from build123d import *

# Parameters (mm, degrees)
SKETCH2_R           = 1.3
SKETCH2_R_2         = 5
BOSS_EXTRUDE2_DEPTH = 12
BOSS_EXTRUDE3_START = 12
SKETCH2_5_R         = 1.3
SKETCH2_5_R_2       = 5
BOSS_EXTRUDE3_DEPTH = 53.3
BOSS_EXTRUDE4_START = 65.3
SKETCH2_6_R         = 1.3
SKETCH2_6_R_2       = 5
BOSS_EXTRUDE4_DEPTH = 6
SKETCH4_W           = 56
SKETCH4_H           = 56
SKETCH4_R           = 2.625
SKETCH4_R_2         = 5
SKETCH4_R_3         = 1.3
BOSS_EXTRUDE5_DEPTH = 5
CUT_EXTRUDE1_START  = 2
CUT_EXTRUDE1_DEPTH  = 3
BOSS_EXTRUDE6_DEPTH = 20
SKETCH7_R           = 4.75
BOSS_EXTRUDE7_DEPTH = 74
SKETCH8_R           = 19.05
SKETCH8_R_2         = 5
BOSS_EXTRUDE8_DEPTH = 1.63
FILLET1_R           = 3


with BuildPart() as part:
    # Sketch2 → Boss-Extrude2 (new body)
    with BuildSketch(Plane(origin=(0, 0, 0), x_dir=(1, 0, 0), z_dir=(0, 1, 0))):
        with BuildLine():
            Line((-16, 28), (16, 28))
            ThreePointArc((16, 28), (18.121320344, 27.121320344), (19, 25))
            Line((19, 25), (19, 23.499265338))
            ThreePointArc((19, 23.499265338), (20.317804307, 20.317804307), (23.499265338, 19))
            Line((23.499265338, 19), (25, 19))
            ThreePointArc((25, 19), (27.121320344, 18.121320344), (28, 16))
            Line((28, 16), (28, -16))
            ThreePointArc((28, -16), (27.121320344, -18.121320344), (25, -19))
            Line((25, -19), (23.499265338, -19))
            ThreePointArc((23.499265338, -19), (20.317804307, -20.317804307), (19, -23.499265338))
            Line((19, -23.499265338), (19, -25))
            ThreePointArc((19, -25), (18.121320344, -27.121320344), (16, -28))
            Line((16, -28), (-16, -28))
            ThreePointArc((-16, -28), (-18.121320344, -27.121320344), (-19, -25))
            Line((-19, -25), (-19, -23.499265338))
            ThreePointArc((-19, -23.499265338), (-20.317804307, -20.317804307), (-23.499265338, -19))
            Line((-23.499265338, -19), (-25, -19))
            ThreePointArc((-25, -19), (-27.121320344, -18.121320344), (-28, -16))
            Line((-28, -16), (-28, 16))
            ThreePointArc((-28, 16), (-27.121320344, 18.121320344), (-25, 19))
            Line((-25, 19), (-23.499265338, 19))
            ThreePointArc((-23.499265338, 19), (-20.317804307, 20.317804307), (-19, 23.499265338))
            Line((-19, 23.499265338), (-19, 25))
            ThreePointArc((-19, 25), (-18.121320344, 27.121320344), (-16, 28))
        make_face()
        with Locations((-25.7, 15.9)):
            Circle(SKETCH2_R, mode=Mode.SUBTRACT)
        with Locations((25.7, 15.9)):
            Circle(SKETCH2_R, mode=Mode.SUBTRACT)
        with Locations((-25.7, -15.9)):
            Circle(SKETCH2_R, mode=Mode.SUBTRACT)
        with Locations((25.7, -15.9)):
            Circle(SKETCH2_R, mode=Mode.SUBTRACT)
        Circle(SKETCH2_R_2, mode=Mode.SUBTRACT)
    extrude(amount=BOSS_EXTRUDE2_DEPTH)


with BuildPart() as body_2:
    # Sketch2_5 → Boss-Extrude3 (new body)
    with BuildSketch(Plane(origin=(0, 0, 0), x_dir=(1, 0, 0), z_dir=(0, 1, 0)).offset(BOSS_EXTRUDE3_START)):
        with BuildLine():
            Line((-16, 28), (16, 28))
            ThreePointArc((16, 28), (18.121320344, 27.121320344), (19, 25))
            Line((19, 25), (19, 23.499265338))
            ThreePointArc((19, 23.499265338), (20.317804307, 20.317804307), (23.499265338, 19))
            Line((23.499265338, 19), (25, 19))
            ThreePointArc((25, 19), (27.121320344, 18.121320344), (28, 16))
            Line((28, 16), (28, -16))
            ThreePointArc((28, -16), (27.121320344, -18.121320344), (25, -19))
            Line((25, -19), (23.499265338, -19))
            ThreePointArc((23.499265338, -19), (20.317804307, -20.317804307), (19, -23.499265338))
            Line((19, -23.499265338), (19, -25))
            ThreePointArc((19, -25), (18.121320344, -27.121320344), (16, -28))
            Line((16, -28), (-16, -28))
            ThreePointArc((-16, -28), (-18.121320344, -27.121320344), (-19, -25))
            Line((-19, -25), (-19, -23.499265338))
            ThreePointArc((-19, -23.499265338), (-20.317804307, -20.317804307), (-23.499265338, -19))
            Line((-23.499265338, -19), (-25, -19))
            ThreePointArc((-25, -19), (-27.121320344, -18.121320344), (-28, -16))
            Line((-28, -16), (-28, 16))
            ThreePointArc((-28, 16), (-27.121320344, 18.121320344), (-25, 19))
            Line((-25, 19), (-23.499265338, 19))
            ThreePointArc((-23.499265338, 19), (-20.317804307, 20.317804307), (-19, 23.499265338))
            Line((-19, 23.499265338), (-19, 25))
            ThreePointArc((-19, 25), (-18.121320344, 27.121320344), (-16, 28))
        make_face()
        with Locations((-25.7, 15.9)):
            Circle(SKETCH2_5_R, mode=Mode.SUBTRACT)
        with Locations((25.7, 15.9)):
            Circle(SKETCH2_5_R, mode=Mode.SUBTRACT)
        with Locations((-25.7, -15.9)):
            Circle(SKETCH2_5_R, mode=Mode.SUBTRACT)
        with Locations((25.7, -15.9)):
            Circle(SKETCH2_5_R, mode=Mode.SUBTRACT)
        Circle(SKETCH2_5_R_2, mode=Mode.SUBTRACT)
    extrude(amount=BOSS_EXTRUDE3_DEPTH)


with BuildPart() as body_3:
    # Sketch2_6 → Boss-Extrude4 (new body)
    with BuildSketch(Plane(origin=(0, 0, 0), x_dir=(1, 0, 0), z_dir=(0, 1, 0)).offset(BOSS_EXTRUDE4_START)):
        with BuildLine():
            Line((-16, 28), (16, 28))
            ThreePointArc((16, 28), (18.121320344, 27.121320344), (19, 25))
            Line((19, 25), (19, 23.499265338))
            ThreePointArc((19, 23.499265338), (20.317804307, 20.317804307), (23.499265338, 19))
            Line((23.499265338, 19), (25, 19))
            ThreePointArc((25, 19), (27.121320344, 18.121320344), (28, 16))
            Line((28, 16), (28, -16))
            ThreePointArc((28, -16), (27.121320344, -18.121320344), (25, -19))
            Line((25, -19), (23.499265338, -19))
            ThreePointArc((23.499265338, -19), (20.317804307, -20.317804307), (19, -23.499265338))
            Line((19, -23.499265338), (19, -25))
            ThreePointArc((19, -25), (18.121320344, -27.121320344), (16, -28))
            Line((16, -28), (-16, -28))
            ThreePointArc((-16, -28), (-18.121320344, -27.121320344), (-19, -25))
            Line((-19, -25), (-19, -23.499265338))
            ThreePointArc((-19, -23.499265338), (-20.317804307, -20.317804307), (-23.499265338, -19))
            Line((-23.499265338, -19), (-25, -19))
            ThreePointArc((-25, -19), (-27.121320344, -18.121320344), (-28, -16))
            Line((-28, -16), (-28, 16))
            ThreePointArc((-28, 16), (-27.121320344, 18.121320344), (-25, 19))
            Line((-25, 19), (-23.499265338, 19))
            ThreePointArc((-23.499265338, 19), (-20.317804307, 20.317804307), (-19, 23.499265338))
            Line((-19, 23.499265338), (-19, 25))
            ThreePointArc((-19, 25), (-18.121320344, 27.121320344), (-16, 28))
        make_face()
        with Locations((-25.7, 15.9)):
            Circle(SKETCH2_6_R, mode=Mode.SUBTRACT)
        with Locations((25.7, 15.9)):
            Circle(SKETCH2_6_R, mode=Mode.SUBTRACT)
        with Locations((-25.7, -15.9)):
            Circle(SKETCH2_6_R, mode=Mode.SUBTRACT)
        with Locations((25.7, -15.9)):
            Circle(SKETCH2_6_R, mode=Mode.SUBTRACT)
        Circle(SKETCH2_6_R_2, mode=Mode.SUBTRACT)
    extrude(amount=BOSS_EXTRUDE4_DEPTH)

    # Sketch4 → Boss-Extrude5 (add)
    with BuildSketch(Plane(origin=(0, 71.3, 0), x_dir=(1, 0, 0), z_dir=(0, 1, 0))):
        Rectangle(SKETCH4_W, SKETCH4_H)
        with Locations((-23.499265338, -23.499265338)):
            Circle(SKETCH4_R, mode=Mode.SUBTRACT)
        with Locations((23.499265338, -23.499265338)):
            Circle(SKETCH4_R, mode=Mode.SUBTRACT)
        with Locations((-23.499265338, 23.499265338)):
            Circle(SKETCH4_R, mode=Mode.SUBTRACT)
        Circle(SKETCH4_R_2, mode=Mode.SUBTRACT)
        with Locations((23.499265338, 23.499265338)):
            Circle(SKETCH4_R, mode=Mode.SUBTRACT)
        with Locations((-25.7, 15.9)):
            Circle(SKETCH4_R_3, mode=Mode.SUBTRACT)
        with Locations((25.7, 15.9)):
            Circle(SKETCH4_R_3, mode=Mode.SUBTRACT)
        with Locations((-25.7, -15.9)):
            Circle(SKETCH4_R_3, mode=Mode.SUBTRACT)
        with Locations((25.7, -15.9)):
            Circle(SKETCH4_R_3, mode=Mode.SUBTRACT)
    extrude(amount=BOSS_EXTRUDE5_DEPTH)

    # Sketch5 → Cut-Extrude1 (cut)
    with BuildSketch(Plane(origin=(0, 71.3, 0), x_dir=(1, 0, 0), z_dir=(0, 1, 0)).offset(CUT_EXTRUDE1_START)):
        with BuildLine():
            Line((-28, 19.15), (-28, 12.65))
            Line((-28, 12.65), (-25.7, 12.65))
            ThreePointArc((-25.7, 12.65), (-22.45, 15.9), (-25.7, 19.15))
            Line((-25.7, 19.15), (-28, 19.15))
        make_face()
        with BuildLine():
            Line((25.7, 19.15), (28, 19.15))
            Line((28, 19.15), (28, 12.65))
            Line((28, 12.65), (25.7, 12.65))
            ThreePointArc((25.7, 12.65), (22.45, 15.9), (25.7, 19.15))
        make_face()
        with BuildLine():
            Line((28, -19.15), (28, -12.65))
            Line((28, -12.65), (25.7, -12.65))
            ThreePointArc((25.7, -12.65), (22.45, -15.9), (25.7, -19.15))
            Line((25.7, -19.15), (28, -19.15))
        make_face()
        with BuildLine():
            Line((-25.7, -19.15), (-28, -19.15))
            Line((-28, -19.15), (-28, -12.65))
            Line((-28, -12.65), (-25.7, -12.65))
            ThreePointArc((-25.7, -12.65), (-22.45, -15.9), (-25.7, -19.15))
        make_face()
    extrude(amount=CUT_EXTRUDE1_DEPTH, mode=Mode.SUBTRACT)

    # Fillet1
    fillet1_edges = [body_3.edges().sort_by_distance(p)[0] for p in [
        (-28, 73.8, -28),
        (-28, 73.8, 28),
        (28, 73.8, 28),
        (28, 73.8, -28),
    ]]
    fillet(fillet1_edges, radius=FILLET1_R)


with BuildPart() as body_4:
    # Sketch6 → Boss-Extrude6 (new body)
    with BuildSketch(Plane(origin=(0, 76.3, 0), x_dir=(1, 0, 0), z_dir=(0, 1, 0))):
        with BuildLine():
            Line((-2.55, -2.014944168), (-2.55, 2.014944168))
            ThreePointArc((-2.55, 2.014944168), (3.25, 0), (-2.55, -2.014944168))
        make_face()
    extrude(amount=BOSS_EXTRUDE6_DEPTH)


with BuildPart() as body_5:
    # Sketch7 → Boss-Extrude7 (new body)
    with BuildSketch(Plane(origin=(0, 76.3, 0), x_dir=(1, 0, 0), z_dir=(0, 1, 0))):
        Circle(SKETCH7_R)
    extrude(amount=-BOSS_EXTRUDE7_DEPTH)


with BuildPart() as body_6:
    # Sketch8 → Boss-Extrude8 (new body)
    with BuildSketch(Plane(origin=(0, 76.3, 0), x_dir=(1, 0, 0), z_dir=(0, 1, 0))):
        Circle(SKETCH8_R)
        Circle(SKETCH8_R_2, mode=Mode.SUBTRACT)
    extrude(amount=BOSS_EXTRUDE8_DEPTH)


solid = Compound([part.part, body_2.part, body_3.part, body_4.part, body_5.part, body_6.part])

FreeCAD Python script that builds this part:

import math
import FreeCAD as App
import Part
import Sketcher


def edges_at(feature, points):
    """Names of the edges that pass closest to the given points."""
    edges = feature.Shape.Edges
    near = lambda p: min(range(len(edges)), key=lambda i: edges[i].distToShape(Part.Vertex(*p))[0])
    return sorted({f"Edge{near(p) + 1}" for p in points})


def add_polygon(sketch, points):
    """Adds a closed chain of lines whose ends are joined by coincident constraints."""
    first, n = sketch.GeometryCount, len(points)
    for a, b in zip(points, points[1:] + points[:1]):
        sketch.addGeometry(Part.LineSegment(App.Vector(*a, 0), App.Vector(*b, 0)), False)
    for i in range(n):
        sketch.addConstraint(Sketcher.Constraint("Coincident", first + i, 2, first + (i + 1) % n, 1))

doc = App.newDocument("Part")
params = doc.addObject("Spreadsheet::Sheet", "Params")
for row, (alias, value) in enumerate([
    ("sketch1_diameter", "10 mm"),
    ("sketch1_radius", "3 mm"),
    ("sketch1_diameter2", "2.6 mm"),
    ("sketch1_width", "32 mm"),
    ("pad1_length", "12 mm"),
    ("sketch2_diameter", "10 mm"),
    ("sketch2_radius", "3 mm"),
    ("sketch2_diameter2", "2.6 mm"),
    ("sketch2_width", "32 mm"),
    ("pad2_length", "53.3 mm"),
    ("sketch3_diameter", "10 mm"),
    ("sketch3_radius", "3 mm"),
    ("sketch3_diameter2", "2.6 mm"),
    ("sketch3_width", "32 mm"),
    ("pad3_length", "6 mm"),
    ("sketch4_diameter", "10 mm"),
    ("sketch4_diameter2", "2.6 mm"),
    ("sketch4_diameter3", "5.25 mm"),
    ("sketch4_width", "56 mm"),
    ("pad4_length", "5 mm"),
    ("sketch5_radius", "3.25 mm"),
    ("sketch5_width", "2.3 mm"),
    ("pocket1_length", "3 mm"),
    ("fillet_radius", "3 mm"),
    ("sketch6_radius", "3.25 mm"),
    ("pad5_length", "20 mm"),
    ("sketch7_diameter", "9.5 mm"),
    ("pad6_length", "74 mm"),
    ("sketch8_diameter", "10 mm"),
    ("sketch8_diameter2", "38.1 mm"),
    ("pad7_length", "1.63 mm"),
], start=1):
    params.set(f"A{row}", alias)
    params.set(f"B{row}", "=" + value)
    params.setAlias(f"B{row}", alias)

body = doc.addObject("PartDesign::Body", "Body")

# Sketch on XZ plane
sketch1 = body.newObject("Sketcher::SketchObject", "Sketch")
sketch1.AttachmentSupport = (doc.getObject("XZ_Plane"), [""])
sketch1.MapMode = "FlatFace"
sketch1.addGeometry(Part.LineSegment(App.Vector(16, -28, 0), App.Vector(-16, -28, 0)), False)
sketch1.addGeometry(Part.ArcOfCircle(Part.Circle(App.Vector(-16, -25, 0), App.Vector(0, 0, 1), 3), math.radians(180), math.radians(270)), False)
sketch1.addGeometry(Part.LineSegment(App.Vector(-19, -25, 0), App.Vector(-19, -23.499265, 0)), False)
sketch1.addGeometry(Part.ArcOfCircle(Part.Circle(App.Vector(-23.499265, -23.499265, 0), App.Vector(0, 0, 1), 4.499265), math.radians(0), math.radians(90)), False)
sketch1.addGeometry(Part.LineSegment(App.Vector(-23.499265, -19, 0), App.Vector(-25, -19, 0)), False)
sketch1.addGeometry(Part.ArcOfCircle(Part.Circle(App.Vector(-25, -16, 0), App.Vector(0, 0, 1), 3), math.radians(180), math.radians(270)), False)
sketch1.addGeometry(Part.LineSegment(App.Vector(-28, -16, 0), App.Vector(-28, 16, 0)), False)
sketch1.addGeometry(Part.ArcOfCircle(Part.Circle(App.Vector(-25, 16, 0), App.Vector(0, 0, 1), 3), math.radians(90), math.radians(180)), False)
sketch1.addGeometry(Part.LineSegment(App.Vector(-25, 19, 0), App.Vector(-23.499265, 19, 0)), False)
sketch1.addGeometry(Part.ArcOfCircle(Part.Circle(App.Vector(-23.499265, 23.499265, 0), App.Vector(0, 0, 1), 4.499265), math.radians(-90), math.radians(0)), False)
sketch1.addGeometry(Part.LineSegment(App.Vector(-19, 23.499265, 0), App.Vector(-19, 25, 0)), False)
sketch1.addGeometry(Part.ArcOfCircle(Part.Circle(App.Vector(-16, 25, 0), App.Vector(0, 0, 1), 3), math.radians(90), math.radians(180)), False)
sketch1.addGeometry(Part.LineSegment(App.Vector(-16, 28, 0), App.Vector(16, 28, 0)), False)
sketch1.addGeometry(Part.ArcOfCircle(Part.Circle(App.Vector(16, 25, 0), App.Vector(0, 0, 1), 3), math.radians(0), math.radians(90)), False)
sketch1.addGeometry(Part.LineSegment(App.Vector(19, 25, 0), App.Vector(19, 23.499265, 0)), False)
sketch1.addGeometry(Part.ArcOfCircle(Part.Circle(App.Vector(23.499265, 23.499265, 0), App.Vector(0, 0, 1), 4.499265), math.radians(180), math.radians(270)), False)
sketch1.addGeometry(Part.LineSegment(App.Vector(23.499265, 19, 0), App.Vector(25, 19, 0)), False)
sketch1.addGeometry(Part.ArcOfCircle(Part.Circle(App.Vector(25, 16, 0), App.Vector(0, 0, 1), 3), math.radians(0), math.radians(90)), False)
sketch1.addGeometry(Part.LineSegment(App.Vector(28, 16, 0), App.Vector(28, -16, 0)), False)
sketch1.addGeometry(Part.ArcOfCircle(Part.Circle(App.Vector(25, -16, 0), App.Vector(0, 0, 1), 3), math.radians(-90), math.radians(0)), False)
sketch1.addGeometry(Part.LineSegment(App.Vector(25, -19, 0), App.Vector(23.499265, -19, 0)), False)
sketch1.addGeometry(Part.ArcOfCircle(Part.Circle(App.Vector(23.499265, -23.499265, 0), App.Vector(0, 0, 1), 4.499265), math.radians(90), math.radians(180)), False)
sketch1.addGeometry(Part.LineSegment(App.Vector(19, -23.499265, 0), App.Vector(19, -25, 0)), False)
sketch1.addGeometry(Part.ArcOfCircle(Part.Circle(App.Vector(16, -25, 0), App.Vector(0, 0, 1), 3), math.radians(-90), math.radians(0)), False)
sketch1.addGeometry(Part.Circle(App.Vector(25.7, 15.9, 0), App.Vector(0, 0, 1), 1.3), False)
sketch1.addGeometry(Part.Circle(App.Vector(-25.7, 15.9, 0), App.Vector(0, 0, 1), 1.3), False)
sketch1.addGeometry(Part.Circle(App.Vector(25.7, -15.9, 0), App.Vector(0, 0, 1), 1.3), False)
sketch1.addGeometry(Part.Circle(App.Vector(0, 0, 0), App.Vector(0, 0, 1), 5), False)
sketch1.addGeometry(Part.Circle(App.Vector(-25.7, -15.9, 0), App.Vector(0, 0, 1), 1.3), False)
sketch1.addConstraint(Sketcher.Constraint("Tangent", 0, 2, 1, 2))
sketch1.addConstraint(Sketcher.Constraint("Tangent", 1, 1, 2, 1))
sketch1.addConstraint(Sketcher.Constraint("Tangent", 2, 2, 3, 1))
sketch1.addConstraint(Sketcher.Constraint("Tangent", 3, 2, 4, 1))
sketch1.addConstraint(Sketcher.Constraint("Tangent", 4, 2, 5, 2))
sketch1.addConstraint(Sketcher.Constraint("Tangent", 5, 1, 6, 1))
sketch1.addConstraint(Sketcher.Constraint("Tangent", 6, 2, 7, 2))
sketch1.addConstraint(Sketcher.Constraint("Tangent", 7, 1, 8, 1))
sketch1.addConstraint(Sketcher.Constraint("Tangent", 8, 2, 9, 1))
sketch1.addConstraint(Sketcher.Constraint("Tangent", 9, 2, 10, 1))
sketch1.addConstraint(Sketcher.Constraint("Tangent", 10, 2, 11, 2))
sketch1.addConstraint(Sketcher.Constraint("Tangent", 11, 1, 12, 1))
sketch1.addConstraint(Sketcher.Constraint("Tangent", 12, 2, 13, 2))
sketch1.addConstraint(Sketcher.Constraint("Tangent", 13, 1, 14, 1))
sketch1.addConstraint(Sketcher.Constraint("Tangent", 14, 2, 15, 1))
sketch1.addConstraint(Sketcher.Constraint("Tangent", 15, 2, 16, 1))
sketch1.addConstraint(Sketcher.Constraint("Tangent", 16, 2, 17, 2))
sketch1.addConstraint(Sketcher.Constraint("Tangent", 17, 1, 18, 1))
sketch1.addConstraint(Sketcher.Constraint("Tangent", 18, 2, 19, 2))
sketch1.addConstraint(Sketcher.Constraint("Tangent", 19, 1, 20, 1))
sketch1.addConstraint(Sketcher.Constraint("Tangent", 20, 2, 21, 1))
sketch1.addConstraint(Sketcher.Constraint("Tangent", 21, 2, 22, 1))
sketch1.addConstraint(Sketcher.Constraint("Tangent", 22, 2, 23, 2))
sketch1.addConstraint(Sketcher.Constraint("Tangent", 23, 1, 0, 1))
sketch1.addConstraint(Sketcher.Constraint("Horizontal", 0))
sketch1.addConstraint(Sketcher.Constraint("Vertical", 2))
sketch1.addConstraint(Sketcher.Constraint("Horizontal", 4))
sketch1.addConstraint(Sketcher.Constraint("Vertical", 6))
sketch1.addConstraint(Sketcher.Constraint("Horizontal", 8))
sketch1.addConstraint(Sketcher.Constraint("Vertical", 10))
sketch1.addConstraint(Sketcher.Constraint("Horizontal", 12))
sketch1.addConstraint(Sketcher.Constraint("Vertical", 14))
sketch1.addConstraint(Sketcher.Constraint("Horizontal", 16))
sketch1.addConstraint(Sketcher.Constraint("Vertical", 18))
sketch1.addConstraint(Sketcher.Constraint("Horizontal", 20))
sketch1.addConstraint(Sketcher.Constraint("Vertical", 22))
sketch1.addConstraint(Sketcher.Constraint("Coincident", 27, 3, -1, 1))
sketch1.addConstraint(Sketcher.Constraint("Equal", 1, 5))
sketch1.addConstraint(Sketcher.Constraint("Equal", 5, 7))
sketch1.addConstraint(Sketcher.Constraint("Equal", 3, 9))
sketch1.addConstraint(Sketcher.Constraint("Equal", 7, 11))
sketch1.addConstraint(Sketcher.Constraint("Equal", 11, 13))
sketch1.addConstraint(Sketcher.Constraint("Equal", 9, 15))
sketch1.addConstraint(Sketcher.Constraint("Equal", 13, 17))
sketch1.addConstraint(Sketcher.Constraint("Equal", 17, 19))
sketch1.addConstraint(Sketcher.Constraint("Equal", 15, 21))
sketch1.addConstraint(Sketcher.Constraint("Equal", 19, 23))
sketch1.addConstraint(Sketcher.Constraint("Equal", 24, 25))
sketch1.addConstraint(Sketcher.Constraint("Equal", 25, 26))
sketch1.addConstraint(Sketcher.Constraint("Equal", 26, 28))
sketch1.addConstraint(Sketcher.Constraint("Symmetric", 1, 3, 13, 3, -1, 1))
sketch1.addConstraint(Sketcher.Constraint("Symmetric", 5, 3, 17, 3, -1, 1))
sketch1.addConstraint(Sketcher.Constraint("Symmetric", 9, 3, 21, 3, -1, 1))
sketch1.addConstraint(Sketcher.Constraint("Symmetric", 25, 3, 26, 3, -1, 1))
sketch1.addConstraint(Sketcher.Constraint("Symmetric", 24, 3, 28, 3, -1, 1))
sketch1.addConstraint(Sketcher.Constraint("Symmetric", 9, 3, 15, 3, -2))
sketch1.addConstraint(Sketcher.Constraint("Symmetric", 24, 3, 25, 3, -2))
sketch1.addConstraint(Sketcher.Constraint("Equal", 20, 2))
sketch1.addConstraint(Sketcher.Constraint("Equal", 12, 6))
sketch1.addConstraint(Sketcher.Constraint("Diameter", 27, 10.0))
sketch1.addConstraint(Sketcher.Constraint("Radius", 1, 3.0))
sketch1.addConstraint(Sketcher.Constraint("Diameter", 24, 2.6))
sketch1.addConstraint(Sketcher.Constraint("DistanceX", 0, 2, 0, 1, 32.0))
sketch1.addConstraint(Sketcher.Constraint("DistanceY", 1, 3, -1, 1, 25.0))
sketch1.addConstraint(Sketcher.Constraint("DistanceX", -1, 1, 24, 3, 25.7))
sketch1.addConstraint(Sketcher.Constraint("DistanceY", -1, 1, 24, 3, 15.9))
sketch1.addConstraint(Sketcher.Constraint("Radius", 3, 4.499265))
sketch1.setExpression("Constraints[59]", "Params.sketch1_diameter")
sketch1.setExpression("Constraints[60]", "Params.sketch1_radius")
sketch1.setExpression("Constraints[61]", "Params.sketch1_diameter2")
sketch1.setExpression("Constraints[62]", "Params.sketch1_width")
pad1 = body.newObject("PartDesign::Pad", "Pad")
pad1.Profile = sketch1
pad1.setExpression("Length", "Params.pad1_length")
pad1.Reversed = True
body2 = doc.addObject("PartDesign::Body", "Body001")

# Sketch on XZ plane
sketch2 = body2.newObject("Sketcher::SketchObject", "Sketch001")
sketch2.AttachmentSupport = (doc.getObject("XZ_Plane001"), [""])
sketch2.MapMode = "FlatFace"
sketch2.AttachmentOffset = App.Placement(App.Vector(0, 0, -12), App.Rotation())
sketch2.addGeometry(Part.LineSegment(App.Vector(16, -28, 0), App.Vector(-16, -28, 0)), False)
sketch2.addGeometry(Part.ArcOfCircle(Part.Circle(App.Vector(-16, -25, 0), App.Vector(0, 0, 1), 3), math.radians(180), math.radians(270)), False)
sketch2.addGeometry(Part.LineSegment(App.Vector(-19, -25, 0), App.Vector(-19, -23.499265, 0)), False)
sketch2.addGeometry(Part.ArcOfCircle(Part.Circle(App.Vector(-23.499265, -23.499265, 0), App.Vector(0, 0, 1), 4.499265), math.radians(0), math.radians(90)), False)
sketch2.addGeometry(Part.LineSegment(App.Vector(-23.499265, -19, 0), App.Vector(-25, -19, 0)), False)
sketch2.addGeometry(Part.ArcOfCircle(Part.Circle(App.Vector(-25, -16, 0), App.Vector(0, 0, 1), 3), math.radians(180), math.radians(270)), False)
sketch2.addGeometry(Part.LineSegment(App.Vector(-28, -16, 0), App.Vector(-28, 16, 0)), False)
sketch2.addGeometry(Part.ArcOfCircle(Part.Circle(App.Vector(-25, 16, 0), App.Vector(0, 0, 1), 3), math.radians(90), math.radians(180)), False)
sketch2.addGeometry(Part.LineSegment(App.Vector(-25, 19, 0), App.Vector(-23.499265, 19, 0)), False)
sketch2.addGeometry(Part.ArcOfCircle(Part.Circle(App.Vector(-23.499265, 23.499265, 0), App.Vector(0, 0, 1), 4.499265), math.radians(-90), math.radians(0)), False)
sketch2.addGeometry(Part.LineSegment(App.Vector(-19, 23.499265, 0), App.Vector(-19, 25, 0)), False)
sketch2.addGeometry(Part.ArcOfCircle(Part.Circle(App.Vector(-16, 25, 0), App.Vector(0, 0, 1), 3), math.radians(90), math.radians(180)), False)
sketch2.addGeometry(Part.LineSegment(App.Vector(-16, 28, 0), App.Vector(16, 28, 0)), False)
sketch2.addGeometry(Part.ArcOfCircle(Part.Circle(App.Vector(16, 25, 0), App.Vector(0, 0, 1), 3), math.radians(0), math.radians(90)), False)
sketch2.addGeometry(Part.LineSegment(App.Vector(19, 25, 0), App.Vector(19, 23.499265, 0)), False)
sketch2.addGeometry(Part.ArcOfCircle(Part.Circle(App.Vector(23.499265, 23.499265, 0), App.Vector(0, 0, 1), 4.499265), math.radians(180), math.radians(270)), False)
sketch2.addGeometry(Part.LineSegment(App.Vector(23.499265, 19, 0), App.Vector(25, 19, 0)), False)
sketch2.addGeometry(Part.ArcOfCircle(Part.Circle(App.Vector(25, 16, 0), App.Vector(0, 0, 1), 3), math.radians(0), math.radians(90)), False)
sketch2.addGeometry(Part.LineSegment(App.Vector(28, 16, 0), App.Vector(28, -16, 0)), False)
sketch2.addGeometry(Part.ArcOfCircle(Part.Circle(App.Vector(25, -16, 0), App.Vector(0, 0, 1), 3), math.radians(-90), math.radians(0)), False)
sketch2.addGeometry(Part.LineSegment(App.Vector(25, -19, 0), App.Vector(23.499265, -19, 0)), False)
sketch2.addGeometry(Part.ArcOfCircle(Part.Circle(App.Vector(23.499265, -23.499265, 0), App.Vector(0, 0, 1), 4.499265), math.radians(90), math.radians(180)), False)
sketch2.addGeometry(Part.LineSegment(App.Vector(19, -23.499265, 0), App.Vector(19, -25, 0)), False)
sketch2.addGeometry(Part.ArcOfCircle(Part.Circle(App.Vector(16, -25, 0), App.Vector(0, 0, 1), 3), math.radians(-90), math.radians(0)), False)
sketch2.addGeometry(Part.Circle(App.Vector(25.7, 15.9, 0), App.Vector(0, 0, 1), 1.3), False)
sketch2.addGeometry(Part.Circle(App.Vector(-25.7, 15.9, 0), App.Vector(0, 0, 1), 1.3), False)
sketch2.addGeometry(Part.Circle(App.Vector(25.7, -15.9, 0), App.Vector(0, 0, 1), 1.3), False)
sketch2.addGeometry(Part.Circle(App.Vector(0, 0, 0), App.Vector(0, 0, 1), 5), False)
sketch2.addGeometry(Part.Circle(App.Vector(-25.7, -15.9, 0), App.Vector(0, 0, 1), 1.3), False)
sketch2.addConstraint(Sketcher.Constraint("Tangent", 0, 2, 1, 2))
sketch2.addConstraint(Sketcher.Constraint("Tangent", 1, 1, 2, 1))
sketch2.addConstraint(Sketcher.Constraint("Tangent", 2, 2, 3, 1))
sketch2.addConstraint(Sketcher.Constraint("Tangent", 3, 2, 4, 1))
sketch2.addConstraint(Sketcher.Constraint("Tangent", 4, 2, 5, 2))
sketch2.addConstraint(Sketcher.Constraint("Tangent", 5, 1, 6, 1))
sketch2.addConstraint(Sketcher.Constraint("Tangent", 6, 2, 7, 2))
sketch2.addConstraint(Sketcher.Constraint("Tangent", 7, 1, 8, 1))
sketch2.addConstraint(Sketcher.Constraint("Tangent", 8, 2, 9, 1))
sketch2.addConstraint(Sketcher.Constraint("Tangent", 9, 2, 10, 1))
sketch2.addConstraint(Sketcher.Constraint("Tangent", 10, 2, 11, 2))
sketch2.addConstraint(Sketcher.Constraint("Tangent", 11, 1, 12, 1))
sketch2.addConstraint(Sketcher.Constraint("Tangent", 12, 2, 13, 2))
sketch2.addConstraint(Sketcher.Constraint("Tangent", 13, 1, 14, 1))
sketch2.addConstraint(Sketcher.Constraint("Tangent", 14, 2, 15, 1))
sketch2.addConstraint(Sketcher.Constraint("Tangent", 15, 2, 16, 1))
sketch2.addConstraint(Sketcher.Constraint("Tangent", 16, 2, 17, 2))
sketch2.addConstraint(Sketcher.Constraint("Tangent", 17, 1, 18, 1))
sketch2.addConstraint(Sketcher.Constraint("Tangent", 18, 2, 19, 2))
sketch2.addConstraint(Sketcher.Constraint("Tangent", 19, 1, 20, 1))
sketch2.addConstraint(Sketcher.Constraint("Tangent", 20, 2, 21, 1))
sketch2.addConstraint(Sketcher.Constraint("Tangent", 21, 2, 22, 1))
sketch2.addConstraint(Sketcher.Constraint("Tangent", 22, 2, 23, 2))
sketch2.addConstraint(Sketcher.Constraint("Tangent", 23, 1, 0, 1))
sketch2.addConstraint(Sketcher.Constraint("Horizontal", 0))
sketch2.addConstraint(Sketcher.Constraint("Vertical", 2))
sketch2.addConstraint(Sketcher.Constraint("Horizontal", 4))
sketch2.addConstraint(Sketcher.Constraint("Vertical", 6))
sketch2.addConstraint(Sketcher.Constraint("Horizontal", 8))
sketch2.addConstraint(Sketcher.Constraint("Vertical", 10))
sketch2.addConstraint(Sketcher.Constraint("Horizontal", 12))
sketch2.addConstraint(Sketcher.Constraint("Vertical", 14))
sketch2.addConstraint(Sketcher.Constraint("Horizontal", 16))
sketch2.addConstraint(Sketcher.Constraint("Vertical", 18))
sketch2.addConstraint(Sketcher.Constraint("Horizontal", 20))
sketch2.addConstraint(Sketcher.Constraint("Vertical", 22))
sketch2.addConstraint(Sketcher.Constraint("Coincident", 27, 3, -1, 1))
sketch2.addConstraint(Sketcher.Constraint("Equal", 1, 5))
sketch2.addConstraint(Sketcher.Constraint("Equal", 5, 7))
sketch2.addConstraint(Sketcher.Constraint("Equal", 3, 9))
sketch2.addConstraint(Sketcher.Constraint("Equal", 7, 11))
sketch2.addConstraint(Sketcher.Constraint("Equal", 11, 13))
sketch2.addConstraint(Sketcher.Constraint("Equal", 9, 15))
sketch2.addConstraint(Sketcher.Constraint("Equal", 13, 17))
sketch2.addConstraint(Sketcher.Constraint("Equal", 17, 19))
sketch2.addConstraint(Sketcher.Constraint("Equal", 15, 21))
sketch2.addConstraint(Sketcher.Constraint("Equal", 19, 23))
sketch2.addConstraint(Sketcher.Constraint("Equal", 24, 25))
sketch2.addConstraint(Sketcher.Constraint("Equal", 25, 26))
sketch2.addConstraint(Sketcher.Constraint("Equal", 26, 28))
sketch2.addConstraint(Sketcher.Constraint("Symmetric", 1, 3, 13, 3, -1, 1))
sketch2.addConstraint(Sketcher.Constraint("Symmetric", 5, 3, 17, 3, -1, 1))
sketch2.addConstraint(Sketcher.Constraint("Symmetric", 9, 3, 21, 3, -1, 1))
sketch2.addConstraint(Sketcher.Constraint("Symmetric", 25, 3, 26, 3, -1, 1))
sketch2.addConstraint(Sketcher.Constraint("Symmetric", 24, 3, 28, 3, -1, 1))
sketch2.addConstraint(Sketcher.Constraint("Symmetric", 9, 3, 15, 3, -2))
sketch2.addConstraint(Sketcher.Constraint("Symmetric", 24, 3, 25, 3, -2))
sketch2.addConstraint(Sketcher.Constraint("Equal", 20, 2))
sketch2.addConstraint(Sketcher.Constraint("Equal", 12, 6))
sketch2.addConstraint(Sketcher.Constraint("Diameter", 27, 10.0))
sketch2.addConstraint(Sketcher.Constraint("Radius", 1, 3.0))
sketch2.addConstraint(Sketcher.Constraint("Diameter", 24, 2.6))
sketch2.addConstraint(Sketcher.Constraint("DistanceX", 0, 2, 0, 1, 32.0))
sketch2.addConstraint(Sketcher.Constraint("DistanceY", 1, 3, -1, 1, 25.0))
sketch2.addConstraint(Sketcher.Constraint("DistanceX", -1, 1, 24, 3, 25.7))
sketch2.addConstraint(Sketcher.Constraint("DistanceY", -1, 1, 24, 3, 15.9))
sketch2.addConstraint(Sketcher.Constraint("Radius", 3, 4.499265))
sketch2.setExpression("Constraints[59]", "Params.sketch2_diameter")
sketch2.setExpression("Constraints[60]", "Params.sketch2_radius")
sketch2.setExpression("Constraints[61]", "Params.sketch2_diameter2")
sketch2.setExpression("Constraints[62]", "Params.sketch2_width")
pad2 = body2.newObject("PartDesign::Pad", "Pad001")
pad2.Profile = sketch2
pad2.setExpression("Length", "Params.pad2_length")
pad2.Reversed = True
body3 = doc.addObject("PartDesign::Body", "Body002")

# Sketch on XZ plane
sketch3 = body3.newObject("Sketcher::SketchObject", "Sketch002")
sketch3.AttachmentSupport = (doc.getObject("XZ_Plane002"), [""])
sketch3.MapMode = "FlatFace"
sketch3.AttachmentOffset = App.Placement(App.Vector(0, 0, -65.3), App.Rotation())
sketch3.addGeometry(Part.LineSegment(App.Vector(16, -28, 0), App.Vector(-16, -28, 0)), False)
sketch3.addGeometry(Part.ArcOfCircle(Part.Circle(App.Vector(-16, -25, 0), App.Vector(0, 0, 1), 3), math.radians(180), math.radians(270)), False)
sketch3.addGeometry(Part.LineSegment(App.Vector(-19, -25, 0), App.Vector(-19, -23.499265, 0)), False)
sketch3.addGeometry(Part.ArcOfCircle(Part.Circle(App.Vector(-23.499265, -23.499265, 0), App.Vector(0, 0, 1), 4.499265), math.radians(0), math.radians(90)), False)
sketch3.addGeometry(Part.LineSegment(App.Vector(-23.499265, -19, 0), App.Vector(-25, -19, 0)), False)
sketch3.addGeometry(Part.ArcOfCircle(Part.Circle(App.Vector(-25, -16, 0), App.Vector(0, 0, 1), 3), math.radians(180), math.radians(270)), False)
sketch3.addGeometry(Part.LineSegment(App.Vector(-28, -16, 0), App.Vector(-28, 16, 0)), False)
sketch3.addGeometry(Part.ArcOfCircle(Part.Circle(App.Vector(-25, 16, 0), App.Vector(0, 0, 1), 3), math.radians(90), math.radians(180)), False)
sketch3.addGeometry(Part.LineSegment(App.Vector(-25, 19, 0), App.Vector(-23.499265, 19, 0)), False)
sketch3.addGeometry(Part.ArcOfCircle(Part.Circle(App.Vector(-23.499265, 23.499265, 0), App.Vector(0, 0, 1), 4.499265), math.radians(-90), math.radians(0)), False)
sketch3.addGeometry(Part.LineSegment(App.Vector(-19, 23.499265, 0), App.Vector(-19, 25, 0)), False)
sketch3.addGeometry(Part.ArcOfCircle(Part.Circle(App.Vector(-16, 25, 0), App.Vector(0, 0, 1), 3), math.radians(90), math.radians(180)), False)
sketch3.addGeometry(Part.LineSegment(App.Vector(-16, 28, 0), App.Vector(16, 28, 0)), False)
sketch3.addGeometry(Part.ArcOfCircle(Part.Circle(App.Vector(16, 25, 0), App.Vector(0, 0, 1), 3), math.radians(0), math.radians(90)), False)
sketch3.addGeometry(Part.LineSegment(App.Vector(19, 25, 0), App.Vector(19, 23.499265, 0)), False)
sketch3.addGeometry(Part.ArcOfCircle(Part.Circle(App.Vector(23.499265, 23.499265, 0), App.Vector(0, 0, 1), 4.499265), math.radians(180), math.radians(270)), False)
sketch3.addGeometry(Part.LineSegment(App.Vector(23.499265, 19, 0), App.Vector(25, 19, 0)), False)
sketch3.addGeometry(Part.ArcOfCircle(Part.Circle(App.Vector(25, 16, 0), App.Vector(0, 0, 1), 3), math.radians(0), math.radians(90)), False)
sketch3.addGeometry(Part.LineSegment(App.Vector(28, 16, 0), App.Vector(28, -16, 0)), False)
sketch3.addGeometry(Part.ArcOfCircle(Part.Circle(App.Vector(25, -16, 0), App.Vector(0, 0, 1), 3), math.radians(-90), math.radians(0)), False)
sketch3.addGeometry(Part.LineSegment(App.Vector(25, -19, 0), App.Vector(23.499265, -19, 0)), False)
sketch3.addGeometry(Part.ArcOfCircle(Part.Circle(App.Vector(23.499265, -23.499265, 0), App.Vector(0, 0, 1), 4.499265), math.radians(90), math.radians(180)), False)
sketch3.addGeometry(Part.LineSegment(App.Vector(19, -23.499265, 0), App.Vector(19, -25, 0)), False)
sketch3.addGeometry(Part.ArcOfCircle(Part.Circle(App.Vector(16, -25, 0), App.Vector(0, 0, 1), 3), math.radians(-90), math.radians(0)), False)
sketch3.addGeometry(Part.Circle(App.Vector(25.7, 15.9, 0), App.Vector(0, 0, 1), 1.3), False)
sketch3.addGeometry(Part.Circle(App.Vector(-25.7, 15.9, 0), App.Vector(0, 0, 1), 1.3), False)
sketch3.addGeometry(Part.Circle(App.Vector(25.7, -15.9, 0), App.Vector(0, 0, 1), 1.3), False)
sketch3.addGeometry(Part.Circle(App.Vector(0, 0, 0), App.Vector(0, 0, 1), 5), False)
sketch3.addGeometry(Part.Circle(App.Vector(-25.7, -15.9, 0), App.Vector(0, 0, 1), 1.3), False)
sketch3.addConstraint(Sketcher.Constraint("Tangent", 0, 2, 1, 2))
sketch3.addConstraint(Sketcher.Constraint("Tangent", 1, 1, 2, 1))
sketch3.addConstraint(Sketcher.Constraint("Tangent", 2, 2, 3, 1))
sketch3.addConstraint(Sketcher.Constraint("Tangent", 3, 2, 4, 1))
sketch3.addConstraint(Sketcher.Constraint("Tangent", 4, 2, 5, 2))
sketch3.addConstraint(Sketcher.Constraint("Tangent", 5, 1, 6, 1))
sketch3.addConstraint(Sketcher.Constraint("Tangent", 6, 2, 7, 2))
sketch3.addConstraint(Sketcher.Constraint("Tangent", 7, 1, 8, 1))
sketch3.addConstraint(Sketcher.Constraint("Tangent", 8, 2, 9, 1))
sketch3.addConstraint(Sketcher.Constraint("Tangent", 9, 2, 10, 1))
sketch3.addConstraint(Sketcher.Constraint("Tangent", 10, 2, 11, 2))
sketch3.addConstraint(Sketcher.Constraint("Tangent", 11, 1, 12, 1))
sketch3.addConstraint(Sketcher.Constraint("Tangent", 12, 2, 13, 2))
sketch3.addConstraint(Sketcher.Constraint("Tangent", 13, 1, 14, 1))
sketch3.addConstraint(Sketcher.Constraint("Tangent", 14, 2, 15, 1))
sketch3.addConstraint(Sketcher.Constraint("Tangent", 15, 2, 16, 1))
sketch3.addConstraint(Sketcher.Constraint("Tangent", 16, 2, 17, 2))
sketch3.addConstraint(Sketcher.Constraint("Tangent", 17, 1, 18, 1))
sketch3.addConstraint(Sketcher.Constraint("Tangent", 18, 2, 19, 2))
sketch3.addConstraint(Sketcher.Constraint("Tangent", 19, 1, 20, 1))
sketch3.addConstraint(Sketcher.Constraint("Tangent", 20, 2, 21, 1))
sketch3.addConstraint(Sketcher.Constraint("Tangent", 21, 2, 22, 1))
sketch3.addConstraint(Sketcher.Constraint("Tangent", 22, 2, 23, 2))
sketch3.addConstraint(Sketcher.Constraint("Tangent", 23, 1, 0, 1))
sketch3.addConstraint(Sketcher.Constraint("Horizontal", 0))
sketch3.addConstraint(Sketcher.Constraint("Vertical", 2))
sketch3.addConstraint(Sketcher.Constraint("Horizontal", 4))
sketch3.addConstraint(Sketcher.Constraint("Vertical", 6))
sketch3.addConstraint(Sketcher.Constraint("Horizontal", 8))
sketch3.addConstraint(Sketcher.Constraint("Vertical", 10))
sketch3.addConstraint(Sketcher.Constraint("Horizontal", 12))
sketch3.addConstraint(Sketcher.Constraint("Vertical", 14))
sketch3.addConstraint(Sketcher.Constraint("Horizontal", 16))
sketch3.addConstraint(Sketcher.Constraint("Vertical", 18))
sketch3.addConstraint(Sketcher.Constraint("Horizontal", 20))
sketch3.addConstraint(Sketcher.Constraint("Vertical", 22))
sketch3.addConstraint(Sketcher.Constraint("Coincident", 27, 3, -1, 1))
sketch3.addConstraint(Sketcher.Constraint("Equal", 1, 5))
sketch3.addConstraint(Sketcher.Constraint("Equal", 5, 7))
sketch3.addConstraint(Sketcher.Constraint("Equal", 3, 9))
sketch3.addConstraint(Sketcher.Constraint("Equal", 7, 11))
sketch3.addConstraint(Sketcher.Constraint("Equal", 11, 13))
sketch3.addConstraint(Sketcher.Constraint("Equal", 9, 15))
sketch3.addConstraint(Sketcher.Constraint("Equal", 13, 17))
sketch3.addConstraint(Sketcher.Constraint("Equal", 17, 19))
sketch3.addConstraint(Sketcher.Constraint("Equal", 15, 21))
sketch3.addConstraint(Sketcher.Constraint("Equal", 19, 23))
sketch3.addConstraint(Sketcher.Constraint("Equal", 24, 25))
sketch3.addConstraint(Sketcher.Constraint("Equal", 25, 26))
sketch3.addConstraint(Sketcher.Constraint("Equal", 26, 28))
sketch3.addConstraint(Sketcher.Constraint("Symmetric", 1, 3, 13, 3, -1, 1))
sketch3.addConstraint(Sketcher.Constraint("Symmetric", 5, 3, 17, 3, -1, 1))
sketch3.addConstraint(Sketcher.Constraint("Symmetric", 9, 3, 21, 3, -1, 1))
sketch3.addConstraint(Sketcher.Constraint("Symmetric", 25, 3, 26, 3, -1, 1))
sketch3.addConstraint(Sketcher.Constraint("Symmetric", 24, 3, 28, 3, -1, 1))
sketch3.addConstraint(Sketcher.Constraint("Symmetric", 9, 3, 15, 3, -2))
sketch3.addConstraint(Sketcher.Constraint("Symmetric", 24, 3, 25, 3, -2))
sketch3.addConstraint(Sketcher.Constraint("Equal", 20, 2))
sketch3.addConstraint(Sketcher.Constraint("Equal", 12, 6))
sketch3.addConstraint(Sketcher.Constraint("Diameter", 27, 10.0))
sketch3.addConstraint(Sketcher.Constraint("Radius", 1, 3.0))
sketch3.addConstraint(Sketcher.Constraint("Diameter", 24, 2.6))
sketch3.addConstraint(Sketcher.Constraint("DistanceX", 0, 2, 0, 1, 32.0))
sketch3.addConstraint(Sketcher.Constraint("DistanceY", 1, 3, -1, 1, 25.0))
sketch3.addConstraint(Sketcher.Constraint("DistanceX", -1, 1, 24, 3, 25.7))
sketch3.addConstraint(Sketcher.Constraint("DistanceY", -1, 1, 24, 3, 15.9))
sketch3.addConstraint(Sketcher.Constraint("Radius", 3, 4.499265))
sketch3.setExpression("Constraints[59]", "Params.sketch3_diameter")
sketch3.setExpression("Constraints[60]", "Params.sketch3_radius")
sketch3.setExpression("Constraints[61]", "Params.sketch3_diameter2")
sketch3.setExpression("Constraints[62]", "Params.sketch3_width")
pad3 = body3.newObject("PartDesign::Pad", "Pad002")
pad3.Profile = sketch3
pad3.setExpression("Length", "Params.pad3_length")
pad3.Reversed = True

# Sketch on XZ plane
sketch4 = body3.newObject("Sketcher::SketchObject", "Sketch003")
sketch4.AttachmentSupport = (doc.getObject("XZ_Plane002"), [""])
sketch4.MapMode = "FlatFace"
sketch4.AttachmentOffset = App.Placement(App.Vector(0, 0, -71.3), App.Rotation())
add_polygon(sketch4, [(-28, -28), (-28, 28), (28, 28), (28, -28)])  # lines 0-3
sketch4.addGeometry(Part.Circle(App.Vector(-23.499265, 23.499265, 0), App.Vector(0, 0, 1), 2.625), False)  # 4
sketch4.addGeometry(Part.Circle(App.Vector(-25.7, 15.9, 0), App.Vector(0, 0, 1), 1.3), False)  # 5
sketch4.addGeometry(Part.Circle(App.Vector(23.499265, 23.499265, 0), App.Vector(0, 0, 1), 2.625), False)  # 6
sketch4.addGeometry(Part.Circle(App.Vector(25.7, 15.9, 0), App.Vector(0, 0, 1), 1.3), False)  # 7
sketch4.addGeometry(Part.Circle(App.Vector(-25.7, -15.9, 0), App.Vector(0, 0, 1), 1.3), False)  # 8
sketch4.addGeometry(Part.Circle(App.Vector(-23.499265, -23.499265, 0), App.Vector(0, 0, 1), 2.625), False)  # 9
sketch4.addGeometry(Part.Circle(App.Vector(0, 0, 0), App.Vector(0, 0, 1), 5), False)  # 10
sketch4.addGeometry(Part.Circle(App.Vector(25.7, -15.9, 0), App.Vector(0, 0, 1), 1.3), False)  # 11
sketch4.addGeometry(Part.Circle(App.Vector(23.499265, -23.499265, 0), App.Vector(0, 0, 1), 2.625), False)  # 12
sketch4.addConstraint(Sketcher.Constraint("Vertical", 0))
sketch4.addConstraint(Sketcher.Constraint("Horizontal", 1))
sketch4.addConstraint(Sketcher.Constraint("Vertical", 2))
sketch4.addConstraint(Sketcher.Constraint("Horizontal", 3))
sketch4.addConstraint(Sketcher.Constraint("Coincident", 10, 3, -1, 1))
sketch4.addConstraint(Sketcher.Constraint("Equal", 4, 6))
sketch4.addConstraint(Sketcher.Constraint("Equal", 5, 7))
sketch4.addConstraint(Sketcher.Constraint("Equal", 7, 8))
sketch4.addConstraint(Sketcher.Constraint("Equal", 6, 9))
sketch4.addConstraint(Sketcher.Constraint("Equal", 8, 11))
sketch4.addConstraint(Sketcher.Constraint("Equal", 9, 12))
sketch4.addConstraint(Sketcher.Constraint("Symmetric", 7, 3, 8, 3, -1, 1))
sketch4.addConstraint(Sketcher.Constraint("Symmetric", 6, 3, 9, 3, -1, 1))
sketch4.addConstraint(Sketcher.Constraint("Symmetric", 5, 3, 11, 3, -1, 1))
sketch4.addConstraint(Sketcher.Constraint("Symmetric", 4, 3, 12, 3, -1, 1))
sketch4.addConstraint(Sketcher.Constraint("Symmetric", 0, 2, 2, 2, -1, 1))
sketch4.addConstraint(Sketcher.Constraint("Symmetric", 4, 3, 6, 3, -2))
sketch4.addConstraint(Sketcher.Constraint("Symmetric", 5, 3, 7, 3, -2))
sketch4.addConstraint(Sketcher.Constraint("Equal", 3, 0))
sketch4.addConstraint(Sketcher.Constraint("Diameter", 10, 10.0))
sketch4.addConstraint(Sketcher.Constraint("Diameter", 5, 2.6))
sketch4.addConstraint(Sketcher.Constraint("Diameter", 4, 5.25))
sketch4.addConstraint(Sketcher.Constraint("DistanceX", 1, 1, 1, 2, 56.0))
sketch4.addConstraint(Sketcher.Constraint("DistanceX", 5, 3, -1, 1, 25.7))
sketch4.addConstraint(Sketcher.Constraint("DistanceY", -1, 1, 5, 3, 15.9))
sketch4.addConstraint(Sketcher.Constraint("DistanceX", 4, 3, 6, 3, 46.998531))
sketch4.addConstraint(Sketcher.Constraint("DistanceY", 9, 3, 4, 3, 46.998531))
sketch4.setExpression("Constraints[23]", "Params.sketch4_diameter")
sketch4.setExpression("Constraints[24]", "Params.sketch4_diameter2")
sketch4.setExpression("Constraints[25]", "Params.sketch4_diameter3")
sketch4.setExpression("Constraints[26]", "Params.sketch4_width")
pad4 = body3.newObject("PartDesign::Pad", "Pad003")
pad4.Profile = sketch4
pad4.setExpression("Length", "Params.pad4_length")
pad4.Reversed = True

# Sketch on XZ plane
sketch5 = body3.newObject("Sketcher::SketchObject", "Sketch004")
sketch5.AttachmentSupport = (doc.getObject("XZ_Plane002"), [""])
sketch5.MapMode = "FlatFace"
sketch5.AttachmentOffset = App.Placement(App.Vector(0, 0, -73.3), App.Rotation())
sketch5.addGeometry(Part.LineSegment(App.Vector(-28, -19.15, 0), App.Vector(-28, -12.65, 0)), False)
sketch5.addGeometry(Part.LineSegment(App.Vector(-28, -12.65, 0), App.Vector(-25.7, -12.65, 0)), False)
sketch5.addGeometry(Part.ArcOfCircle(Part.Circle(App.Vector(-25.7, -15.9, 0), App.Vector(0, 0, 1), 3.25), math.radians(-90), math.radians(90)), False)
sketch5.addGeometry(Part.LineSegment(App.Vector(-25.7, -19.15, 0), App.Vector(-28, -19.15, 0)), False)
sketch5.addGeometry(Part.LineSegment(App.Vector(28, -19.15, 0), App.Vector(25.7, -19.15, 0)), False)
sketch5.addGeometry(Part.ArcOfCircle(Part.Circle(App.Vector(25.7, -15.9, 0), App.Vector(0, 0, 1), 3.25), math.radians(90), math.radians(270)), False)
sketch5.addGeometry(Part.LineSegment(App.Vector(25.7, -12.65, 0), App.Vector(28, -12.65, 0)), False)
sketch5.addGeometry(Part.LineSegment(App.Vector(28, -12.65, 0), App.Vector(28, -19.15, 0)), False)
sketch5.addGeometry(Part.LineSegment(App.Vector(28, 19.15, 0), App.Vector(28, 12.65, 0)), False)
sketch5.addGeometry(Part.LineSegment(App.Vector(28, 12.65, 0), App.Vector(25.7, 12.65, 0)), False)
sketch5.addGeometry(Part.ArcOfCircle(Part.Circle(App.Vector(25.7, 15.9, 0), App.Vector(0, 0, 1), 3.25), math.radians(90), math.radians(270)), False)
sketch5.addGeometry(Part.LineSegment(App.Vector(25.7, 19.15, 0), App.Vector(28, 19.15, 0)), False)
sketch5.addGeometry(Part.LineSegment(App.Vector(-28, 19.15, 0), App.Vector(-25.7, 19.15, 0)), False)
sketch5.addGeometry(Part.ArcOfCircle(Part.Circle(App.Vector(-25.7, 15.9, 0), App.Vector(0, 0, 1), 3.25), math.radians(-90), math.radians(90)), False)
sketch5.addGeometry(Part.LineSegment(App.Vector(-25.7, 12.65, 0), App.Vector(-28, 12.65, 0)), False)
sketch5.addGeometry(Part.LineSegment(App.Vector(-28, 12.65, 0), App.Vector(-28, 19.15, 0)), False)
sketch5.addConstraint(Sketcher.Constraint("Coincident", 0, 2, 1, 1))
sketch5.addConstraint(Sketcher.Constraint("Tangent", 1, 2, 2, 2))
sketch5.addConstraint(Sketcher.Constraint("Tangent", 2, 1, 3, 1))
sketch5.addConstraint(Sketcher.Constraint("Coincident", 3, 2, 0, 1))
sketch5.addConstraint(Sketcher.Constraint("Tangent", 4, 2, 5, 2))
sketch5.addConstraint(Sketcher.Constraint("Tangent", 5, 1, 6, 1))
sketch5.addConstraint(Sketcher.Constraint("Coincident", 6, 2, 7, 1))
sketch5.addConstraint(Sketcher.Constraint("Coincident", 7, 2, 4, 1))
sketch5.addConstraint(Sketcher.Constraint("Coincident", 8, 2, 9, 1))
sketch5.addConstraint(Sketcher.Constraint("Tangent", 9, 2, 10, 2))
sketch5.addConstraint(Sketcher.Constraint("Tangent", 10, 1, 11, 1))
sketch5.addConstraint(Sketcher.Constraint("Coincident", 11, 2, 8, 1))
sketch5.addConstraint(Sketcher.Constraint("Tangent", 12, 2, 13, 2))
sketch5.addConstraint(Sketcher.Constraint("Tangent", 13, 1, 14, 1))
sketch5.addConstraint(Sketcher.Constraint("Coincident", 14, 2, 15, 1))
sketch5.addConstraint(Sketcher.Constraint("Coincident", 15, 2, 12, 1))
sketch5.addConstraint(Sketcher.Constraint("Vertical", 0))
sketch5.addConstraint(Sketcher.Constraint("Horizontal", 1))
sketch5.addConstraint(Sketcher.Constraint("Horizontal", 3))
sketch5.addConstraint(Sketcher.Constraint("Horizontal", 4))
sketch5.addConstraint(Sketcher.Constraint("Horizontal", 6))
sketch5.addConstraint(Sketcher.Constraint("Vertical", 7))
sketch5.addConstraint(Sketcher.Constraint("Vertical", 8))
sketch5.addConstraint(Sketcher.Constraint("Horizontal", 9))
sketch5.addConstraint(Sketcher.Constraint("Horizontal", 11))
sketch5.addConstraint(Sketcher.Constraint("Horizontal", 12))
sketch5.addConstraint(Sketcher.Constraint("Horizontal", 14))
sketch5.addConstraint(Sketcher.Constraint("Vertical", 15))
sketch5.addConstraint(Sketcher.Constraint("Equal", 2, 5))
sketch5.addConstraint(Sketcher.Constraint("Equal", 5, 10))
sketch5.addConstraint(Sketcher.Constraint("Equal", 10, 13))
sketch5.addConstraint(Sketcher.Constraint("Symmetric", 2, 3, 10, 3, -1, 1))
sketch5.addConstraint(Sketcher.Constraint("Symmetric", 5, 3, 13, 3, -1, 1))
sketch5.addConstraint(Sketcher.Constraint("Symmetric", 2, 3, 5, 3, -2))
sketch5.addConstraint(Sketcher.Constraint("Vertical", 7, 2, 8, 2))
sketch5.addConstraint(Sketcher.Constraint("Vertical", 3, 2, 14, 2))
sketch5.addConstraint(Sketcher.Constraint("Equal", 3, 4))
sketch5.addConstraint(Sketcher.Constraint("Radius", 2, 3.25))
sketch5.addConstraint(Sketcher.Constraint("DistanceX", 1, 1, 1, 2, 2.3))
sketch5.addConstraint(Sketcher.Constraint("DistanceX", 0, 2, -1, 1, 28.0))
sketch5.addConstraint(Sketcher.Constraint("DistanceY", 2, 3, -1, 1, 15.9))
sketch5.setExpression("Constraints[37]", "Params.sketch5_radius")
sketch5.setExpression("Constraints[38]", "Params.sketch5_width")
pocket1 = body3.newObject("PartDesign::Pocket", "Pocket")
pocket1.Profile = sketch5
pocket1.setExpression("Length", "Params.pocket1_length")
doc.recompute()

fillet = body3.newObject("PartDesign::Fillet", "Fillet")
fillet.Base = (pocket1, edges_at(pocket1, [
    (-28, 73.8, -28),
    (-28, 73.8, 28),
    (28, 73.8, 28),
    (28, 73.8, -28),
]))
fillet.setExpression("Radius", "Params.fillet_radius")
body4 = doc.addObject("PartDesign::Body", "Body003")

# Sketch on XZ plane
sketch6 = body4.newObject("Sketcher::SketchObject", "Sketch005")
sketch6.AttachmentSupport = (doc.getObject("XZ_Plane003"), [""])
sketch6.MapMode = "FlatFace"
sketch6.AttachmentOffset = App.Placement(App.Vector(0, 0, -76.3), App.Rotation())
sketch6.addGeometry(Part.LineSegment(App.Vector(-2.55, -2.014944, 0), App.Vector(-2.55, 2.014944, 0)), False)
sketch6.addGeometry(Part.ArcOfCircle(Part.Circle(App.Vector(0, 0, 0), App.Vector(0, 0, 1), 3.25), math.radians(-141.68512), math.radians(141.68512)), False)
sketch6.addConstraint(Sketcher.Constraint("Coincident", 0, 1, 1, 1))
sketch6.addConstraint(Sketcher.Constraint("Coincident", 1, 2, 0, 2))
sketch6.addConstraint(Sketcher.Constraint("Vertical", 0))
sketch6.addConstraint(Sketcher.Constraint("Coincident", 1, 3, -1, 1))
sketch6.addConstraint(Sketcher.Constraint("Radius", 1, 3.25))
sketch6.addConstraint(Sketcher.Constraint("DistanceX", 0, 1, -1, 1, 2.55))
sketch6.setExpression("Constraints[4]", "Params.sketch6_radius")
pad5 = body4.newObject("PartDesign::Pad", "Pad004")
pad5.Profile = sketch6
pad5.setExpression("Length", "Params.pad5_length")
pad5.Reversed = True
body5 = doc.addObject("PartDesign::Body", "Body004")

# Sketch on XZ plane
sketch7 = body5.newObject("Sketcher::SketchObject", "Sketch006")
sketch7.AttachmentSupport = (doc.getObject("XZ_Plane004"), [""])
sketch7.MapMode = "FlatFace"
sketch7.AttachmentOffset = App.Placement(App.Vector(0, 0, -76.3), App.Rotation())
sketch7.addGeometry(Part.Circle(App.Vector(0, 0, 0), App.Vector(0, 0, 1), 4.75), False)
sketch7.addConstraint(Sketcher.Constraint("Coincident", 0, 3, -1, 1))
sketch7.addConstraint(Sketcher.Constraint("Diameter", 0, 9.5))
sketch7.setExpression("Constraints[1]", "Params.sketch7_diameter")
pad6 = body5.newObject("PartDesign::Pad", "Pad005")
pad6.Profile = sketch7
pad6.setExpression("Length", "Params.pad6_length")
body6 = doc.addObject("PartDesign::Body", "Body005")

# Sketch on XZ plane
sketch8 = body6.newObject("Sketcher::SketchObject", "Sketch007")
sketch8.AttachmentSupport = (doc.getObject("XZ_Plane005"), [""])
sketch8.MapMode = "FlatFace"
sketch8.AttachmentOffset = App.Placement(App.Vector(0, 0, -76.3), App.Rotation())
sketch8.addGeometry(Part.Circle(App.Vector(0, 0, 0), App.Vector(0, 0, 1), 19.05), False)
sketch8.addGeometry(Part.Circle(App.Vector(0, 0, 0), App.Vector(0, 0, 1), 5), False)
sketch8.addConstraint(Sketcher.Constraint("Coincident", 0, 3, -1, 1))
sketch8.addConstraint(Sketcher.Constraint("Coincident", 1, 3, -1, 1))
sketch8.addConstraint(Sketcher.Constraint("Diameter", 1, 10.0))
sketch8.addConstraint(Sketcher.Constraint("Diameter", 0, 38.1))
sketch8.setExpression("Constraints[2]", "Params.sketch8_diameter")
sketch8.setExpression("Constraints[3]", "Params.sketch8_diameter2")
pad7 = body6.newObject("PartDesign::Pad", "Pad006")
pad7.Profile = sketch8
pad7.setExpression("Length", "Params.pad7_length")
pad7.Reversed = True

doc.recompute()
